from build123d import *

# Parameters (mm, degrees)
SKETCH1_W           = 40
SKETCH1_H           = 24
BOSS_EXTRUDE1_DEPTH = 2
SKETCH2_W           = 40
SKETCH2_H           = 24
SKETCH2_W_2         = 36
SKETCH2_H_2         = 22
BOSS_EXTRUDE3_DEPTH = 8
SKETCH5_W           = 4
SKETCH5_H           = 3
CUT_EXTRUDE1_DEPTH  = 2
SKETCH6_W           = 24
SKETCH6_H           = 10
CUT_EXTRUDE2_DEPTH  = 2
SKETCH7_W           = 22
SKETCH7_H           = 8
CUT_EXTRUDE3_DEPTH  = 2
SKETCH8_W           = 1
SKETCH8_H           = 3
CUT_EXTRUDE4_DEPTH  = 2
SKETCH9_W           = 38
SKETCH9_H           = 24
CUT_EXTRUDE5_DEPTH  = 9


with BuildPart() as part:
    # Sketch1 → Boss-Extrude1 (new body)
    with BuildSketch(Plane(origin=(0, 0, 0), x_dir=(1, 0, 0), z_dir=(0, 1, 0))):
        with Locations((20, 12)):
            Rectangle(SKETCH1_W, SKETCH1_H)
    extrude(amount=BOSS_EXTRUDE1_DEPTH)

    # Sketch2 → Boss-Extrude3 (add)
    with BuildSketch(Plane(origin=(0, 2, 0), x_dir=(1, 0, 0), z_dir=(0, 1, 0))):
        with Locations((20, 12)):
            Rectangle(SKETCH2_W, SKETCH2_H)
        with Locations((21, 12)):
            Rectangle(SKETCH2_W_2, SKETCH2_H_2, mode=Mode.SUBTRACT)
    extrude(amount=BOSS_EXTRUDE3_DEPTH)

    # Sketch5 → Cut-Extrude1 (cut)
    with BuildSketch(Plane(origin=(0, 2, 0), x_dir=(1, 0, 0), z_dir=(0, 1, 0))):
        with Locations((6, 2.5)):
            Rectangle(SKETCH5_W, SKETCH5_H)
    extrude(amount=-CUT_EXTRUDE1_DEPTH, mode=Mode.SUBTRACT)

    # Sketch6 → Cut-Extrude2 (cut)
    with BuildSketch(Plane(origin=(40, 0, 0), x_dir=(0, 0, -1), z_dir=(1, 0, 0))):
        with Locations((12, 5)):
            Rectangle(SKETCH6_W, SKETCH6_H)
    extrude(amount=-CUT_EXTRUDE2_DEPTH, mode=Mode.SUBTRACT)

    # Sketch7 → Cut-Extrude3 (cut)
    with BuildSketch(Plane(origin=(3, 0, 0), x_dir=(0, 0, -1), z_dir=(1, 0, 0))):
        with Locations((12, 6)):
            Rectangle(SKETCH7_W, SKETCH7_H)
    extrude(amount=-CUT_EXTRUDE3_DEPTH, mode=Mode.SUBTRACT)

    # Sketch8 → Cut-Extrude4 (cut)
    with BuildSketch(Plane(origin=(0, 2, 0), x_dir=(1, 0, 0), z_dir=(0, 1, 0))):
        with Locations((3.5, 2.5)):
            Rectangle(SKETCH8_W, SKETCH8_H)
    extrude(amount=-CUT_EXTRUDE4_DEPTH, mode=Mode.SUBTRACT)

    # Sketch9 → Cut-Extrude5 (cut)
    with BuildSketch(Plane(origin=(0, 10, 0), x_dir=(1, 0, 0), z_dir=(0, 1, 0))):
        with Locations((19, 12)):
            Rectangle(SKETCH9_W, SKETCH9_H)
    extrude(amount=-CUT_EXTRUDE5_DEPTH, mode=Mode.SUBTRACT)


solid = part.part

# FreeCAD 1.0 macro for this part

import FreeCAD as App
import Part
import Sketcher


def add_polygon(sketch, points):
    """Adds a closed chain of lines whose ends are joined by coincident constraints."""
    first, n = sketch.GeometryCount, len(points)
    for a, b in zip(points, points[1:] + points[:1]):
        sketch.addGeometry(Part.LineSegment(App.Vector(*a, 0), App.Vector(*b, 0)), False)
    for i in range(n):
        sketch.addConstraint(Sketcher.Constraint("Coincident", first + i, 2, first + (i + 1) % n, 1))

doc = App.newDocument("Part")
params = doc.addObject("Spreadsheet::Sheet", "Params")
for row, (alias, value) in enumerate([
    ("sketch1_width", "40 mm"),
    ("sketch1_height", "24 mm"),
    ("pad1_length", "2 mm"),
    ("sketch2_width", "40 mm"),
    ("sketch2_width2", "36 mm"),
    ("sketch2_height", "24 mm"),
    ("sketch2_height2", "22 mm"),
    ("pad2_length", "8 mm"),
    ("sketch3_width", "4 mm"),
    ("sketch3_height", "3 mm"),
    ("pocket1_length", "2 mm"),
    ("sketch4_width", "10 mm"),
    ("sketch4_height", "24 mm"),
    ("pocket2_length", "2 mm"),
    ("sketch5_width", "8 mm"),
    ("sketch5_height", "22 mm"),
    ("pocket3_length", "2 mm"),
    ("sketch6_width", "1 mm"),
    ("sketch6_height", "3 mm"),
    ("pocket4_length", "2 mm"),
    ("sketch7_width", "38 mm"),
    ("sketch7_height", "24 mm"),
    ("pocket5_length", "9 mm"),
], start=1):
    params.set(f"A{row}", alias)
    params.set(f"B{row}", "=" + value)
    params.setAlias(f"B{row}", alias)

body = doc.addObject("PartDesign::Body", "Body")

sketch1 = doc.addObject("Sketcher::SketchObject", "Sketch")
body.addObject(sketch1)
sketch1.AttachmentSupport = (doc.XZ_Plane, [""])
sketch1.MapMode = "FlatFace"
add_polygon(sketch1, [(0, -24), (0, 0), (40, 0), (40, -24)])
sketch1.addConstraint([
    Sketcher.Constraint("Vertical", 0),
    Sketcher.Constraint("Horizontal", 1),
    Sketcher.Constraint("Vertical", 2),
    Sketcher.Constraint("Horizontal", 3),
    Sketcher.Constraint("Coincident", 0, 2, -1, 1),
    Sketcher.Constraint("DistanceX", 1, 1, 1, 2, 40.0),
    Sketcher.Constraint("DistanceY", 0, 1, 0, 2, 24.0),
])
sketch1.setExpression("Constraints[9]", "Params.sketch1_width")
sketch1.setExpression("Constraints[10]", "Params.sketch1_height")
pad1 = doc.addObject("PartDesign::Pad", "Pad")
body.addObject(pad1)
pad1.Profile = sketch1
pad1.setExpression("Length", "Params.pad1_length")
pad1.Reversed = True

sketch2 = doc.addObject("Sketcher::SketchObject", "Sketch001")
body.addObject(sketch2)
sketch2.AttachmentSupport = (doc.XZ_Plane, [""])
sketch2.MapMode = "FlatFace"
sketch2.AttachmentOffset = App.Placement(App.Vector(0, 0, -2), App.Rotation())
add_polygon(sketch2, [(0, -24), (0, 0), (40, 0), (40, -24)])
add_polygon(sketch2, [(39, -1), (3, -1), (3, -23), (39, -23)])
sketch2.addConstraint([
    Sketcher.Constraint("Vertical", 0),
    Sketcher.Constraint("Horizontal", 1),
    Sketcher.Constraint("Vertical", 2),
    Sketcher.Constraint("Horizontal", 3),
    Sketcher.Constraint("Horizontal", 4),
    Sketcher.Constraint("Vertical", 5),
    Sketcher.Constraint("Horizontal", 6),
    Sketcher.Constraint("Vertical", 7),
    Sketcher.Constraint("Coincident", 0, 2, -1, 1),
    Sketcher.Constraint("DistanceX", 1, 1, 1, 2, 40.0),
    Sketcher.Constraint("DistanceX", 4, 2, 4, 1, 36.0),
    Sketcher.Constraint("DistanceY", 0, 1, 0, 2, 24.0),
    Sketcher.Constraint("DistanceY", 5, 2, 5, 1, 22.0),
    Sketcher.Constraint("DistanceX", -1, 1, 4, 2, 3.0),
    Sketcher.Constraint("DistanceY", 4, 2, -1, 1, 1.0),
])
sketch2.setExpression("Constraints[17]", "Params.sketch2_width")
sketch2.setExpression("Constraints[18]", "Params.sketch2_width2")
sketch2.setExpression("Constraints[19]", "Params.sketch2_height")
sketch2.setExpression("Constraints[20]", "Params.sketch2_height2")
pad2 = doc.addObject("PartDesign::Pad", "Pad001")
body.addObject(pad2)
pad2.Profile = sketch2
pad2.setExpression("Length", "Params.pad2_length")
pad2.Reversed = True

sketch3 = doc.addObject("Sketcher::SketchObject", "Sketch002")
body.addObject(sketch3)
sketch3.AttachmentSupport = (doc.XZ_Plane, [""])
sketch3.MapMode = "FlatFace"
sketch3.AttachmentOffset = App.Placement(App.Vector(0, 0, -2), App.Rotation())
add_polygon(sketch3, [(4, -4), (4, -1), (8, -1), (8, -4)])
sketch3.addConstraint([
    Sketcher.Constraint("Vertical", 0),
    Sketcher.Constraint("Horizontal", 1),
    Sketcher.Constraint("Vertical", 2),
    Sketcher.Constraint("Horizontal", 3),
    Sketcher.Constraint("DistanceX", 1, 1, 1, 2, 4.0),
    Sketcher.Constraint("DistanceY", 0, 1, 0, 2, 3.0),
    Sketcher.Constraint("DistanceX", -1, 1, 0, 2, 4.0),
    Sketcher.Constraint("DistanceY", 0, 2, -1, 1, 1.0),
])
sketch3.setExpression("Constraints[8]", "Params.sketch3_width")
sketch3.setExpression("Constraints[9]", "Params.sketch3_height")
pocket1 = doc.addObject("PartDesign::Pocket", "Pocket")
body.addObject(pocket1)
pocket1.Profile = sketch3
pocket1.setExpression("Length", "Params.pocket1_length")
pocket1.Reversed = True

sketch4 = doc.addObject("Sketcher::SketchObject", "Sketch003")
body.addObject(sketch4)
sketch4.AttachmentSupport = (doc.YZ_Plane, [""])
sketch4.MapMode = "FlatFace"
sketch4.AttachmentOffset = App.Placement(App.Vector(0, 0, 40), App.Rotation())
add_polygon(sketch4, [(10, 0), (0, 0), (0, -24), (10, -24)])
sketch4.addConstraint([
    Sketcher.Constraint("Horizontal", 0),
    Sketcher.Constraint("Vertical", 1),
    Sketcher.Constraint("Horizontal", 2),
    Sketcher.Constraint("Vertical", 3),
    Sketcher.Constraint("Coincident", 0, 2, -1, 1),
    Sketcher.Constraint("DistanceX", 0, 2, 0, 1, 10.0),
    Sketcher.Constraint("DistanceY", 1, 2, 1, 1, 24.0),
])
sketch4.setExpression("Constraints[9]", "Params.sketch4_width")
sketch4.setExpression("Constraints[10]", "Params.sketch4_height")
pocket2 = doc.addObject("PartDesign::Pocket", "Pocket001")
body.addObject(pocket2)
pocket2.Profile = sketch4
pocket2.setExpression("Length", "Params.pocket2_length")

sketch5 = doc.addObject("Sketcher::SketchObject", "Sketch004")
body.addObject(sketch5)
sketch5.AttachmentSupport = (doc.YZ_Plane, [""])
sketch5.MapMode = "FlatFace"
sketch5.AttachmentOffset = App.Placement(App.Vector(0, 0, 3), App.Rotation())
add_polygon(sketch5, [(10, -1), (2, -1), (2, -23), (10, -23)])
sketch5.addConstraint([
    Sketcher.Constraint("Horizontal", 0),
    Sketcher.Constraint("Vertical", 1),
    Sketcher.Constraint("Horizontal", 2),
    Sketcher.Constraint("Vertical", 3),
    Sketcher.Constraint("DistanceX", 0, 2, 0, 1, 8.0),
    Sketcher.Constraint("DistanceY", 1, 2, 1, 1, 22.0),
    Sketcher.Constraint("DistanceX", -1, 1, 0, 2, 2.0),
    Sketcher.Constraint("DistanceY", 0, 2, -1, 1, 1.0),
])
sketch5.setExpression("Constraints[8]", "Params.sketch5_width")
sketch5.setExpression("Constraints[9]", "Params.sketch5_height")
pocket3 = doc.addObject("PartDesign::Pocket", "Pocket002")
body.addObject(pocket3)
pocket3.Profile = sketch5
pocket3.setExpression("Length", "Params.pocket3_length")

sketch6 = doc.addObject("Sketcher::SketchObject", "Sketch005")
body.addObject(sketch6)
sketch6.AttachmentSupport = (doc.XZ_Plane, [""])
sketch6.MapMode = "FlatFace"
sketch6.AttachmentOffset = App.Placement(App.Vector(0, 0, -2), App.Rotation())
add_polygon(sketch6, [(3, -4), (3, -1), (4, -1), (4, -4)])
sketch6.addConstraint([
    Sketcher.Constraint("Vertical", 0),
    Sketcher.Constraint("Horizontal", 1),
    Sketcher.Constraint("Vertical", 2),
    Sketcher.Constraint("Horizontal", 3),
    Sketcher.Constraint("DistanceX", 1, 1, 1, 2, 1.0),
    Sketcher.Constraint("DistanceY", 0, 1, 0, 2, 3.0),
    Sketcher.Constraint("DistanceX", -1, 1, 0, 2, 3.0),
    Sketcher.Constraint("DistanceY", 0, 2, -1, 1, 1.0),
])
sketch6.setExpression("Constraints[8]", "Params.sketch6_width")
sketch6.setExpression("Constraints[9]", "Params.sketch6_height")
pocket4 = doc.addObject("PartDesign::Pocket", "Pocket003")
body.addObject(pocket4)
pocket4.Profile = sketch6
pocket4.setExpression("Length", "Params.pocket4_length")
pocket4.Reversed = True

sketch7 = doc.addObject("Sketcher::SketchObject", "Sketch006")
body.addObject(sketch7)
sketch7.AttachmentSupport = (doc.XZ_Plane, [""])
sketch7.MapMode = "FlatFace"
sketch7.AttachmentOffset = App.Placement(App.Vector(0, 0, -10), App.Rotation())
add_polygon(sketch7, [(0, -24), (0, 0), (38, 0), (38, -24)])
sketch7.addConstraint([
    Sketcher.Constraint("Vertical", 0),
    Sketcher.Constraint("Horizontal", 1),
    Sketcher.Constraint("Vertical", 2),
    Sketcher.Constraint("Horizontal", 3),
    Sketcher.Constraint("Coincident", 0, 2, -1, 1),
    Sketcher.Constraint("DistanceX", 1, 1, 1, 2, 38.0),
    Sketcher.Constraint("DistanceY", 0, 1, 0, 2, 24.0),
])
sketch7.setExpression("Constraints[9]", "Params.sketch7_width")
sketch7.setExpression("Constraints[10]", "Params.sketch7_height")
pocket5 = doc.addObject("PartDesign::Pocket", "Pocket004")
body.addObject(pocket5)
pocket5.Profile = sketch7
pocket5.setExpression("Length", "Params.pocket5_length")
pocket5.Reversed = True

doc.recompute()
